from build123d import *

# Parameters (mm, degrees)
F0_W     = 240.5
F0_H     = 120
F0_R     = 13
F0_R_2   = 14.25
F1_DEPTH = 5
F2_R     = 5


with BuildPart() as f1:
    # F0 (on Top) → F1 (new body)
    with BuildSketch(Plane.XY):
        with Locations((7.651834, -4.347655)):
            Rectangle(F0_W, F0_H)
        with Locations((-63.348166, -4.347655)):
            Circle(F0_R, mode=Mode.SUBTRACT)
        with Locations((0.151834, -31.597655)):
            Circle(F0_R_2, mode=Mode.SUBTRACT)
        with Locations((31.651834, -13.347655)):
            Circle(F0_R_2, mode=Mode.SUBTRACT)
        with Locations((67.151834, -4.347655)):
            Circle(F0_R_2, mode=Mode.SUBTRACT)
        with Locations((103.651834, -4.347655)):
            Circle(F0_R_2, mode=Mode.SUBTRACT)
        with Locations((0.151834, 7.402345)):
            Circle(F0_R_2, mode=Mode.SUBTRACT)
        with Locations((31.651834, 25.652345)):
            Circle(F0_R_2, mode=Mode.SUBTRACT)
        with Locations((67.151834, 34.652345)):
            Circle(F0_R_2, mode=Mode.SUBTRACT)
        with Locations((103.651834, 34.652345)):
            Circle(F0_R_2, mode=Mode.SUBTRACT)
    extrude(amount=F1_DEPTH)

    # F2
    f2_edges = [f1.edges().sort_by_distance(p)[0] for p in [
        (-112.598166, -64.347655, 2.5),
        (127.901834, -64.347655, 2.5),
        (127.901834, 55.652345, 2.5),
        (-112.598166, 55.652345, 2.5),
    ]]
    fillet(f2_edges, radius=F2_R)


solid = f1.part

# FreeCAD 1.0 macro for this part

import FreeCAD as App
import Part
import Sketcher

V = App.Vector


def edges_at(feature, points):
    """Names of the edges that pass closest to the given points."""
    edges = feature.Shape.Edges
    near = lambda p: min(range(len(edges)), key=lambda i: edges[i].distToShape(Part.Vertex(*p))[0])
    return sorted({f"Edge{near(p) + 1}" for p in points})

doc = App.newDocument("Part")
body = doc.addObject("PartDesign::Body", "Body")

# Sketch on XY plane
sketch1 = body.newObject("Sketcher::SketchObject", "Sketch")
sketch1.AttachmentSupport = (doc.getObject("XY_Plane"), [""])
sketch1.MapMode = "FlatFace"
sketch1.addGeometry([
    Part.LineSegment(V(-113, 56, 0), V(-113, -64, 0)),  # 0
    Part.LineSegment(V(-113, -64, 0), V(128, -64, 0)),  # 1
    Part.LineSegment(V(128, -64, 0), V(128, 56, 0)),  # 2
    Part.LineSegment(V(128, 56, 0), V(-113, 56, 0)),  # 3
    Part.Circle(V(0, -32, 0), V(0, 0, 1), 14),  # 4
    Part.Circle(V(-63, -4, 0), V(0, 0, 1), 13),  # 5
    Part.Circle(V(32, -13, 0), V(0, 0, 1), 14),  # 6
    Part.Circle(V(67, -4, 0), V(0, 0, 1), 14),  # 7
    Part.Circle(V(104, -4, 0), V(0, 0, 1), 14),  # 8
    Part.Circle(V(0, 7, 0), V(0, 0, 1), 14),  # 9
    Part.Circle(V(32, 26, 0), V(0, 0, 1), 14),  # 10
    Part.Circle(V(67, 35, 0), V(0, 0, 1), 14),  # 11
    Part.Circle(V(104, 35, 0), V(0, 0, 1), 14),  # 12
], False)
sketch1.addConstraint([
    Sketcher.Constraint("Coincident", 0, 2, 1, 1),
    Sketcher.Constraint("Coincident", 1, 2, 2, 1),
    Sketcher.Constraint("Coincident", 2, 2, 3, 1),
    Sketcher.Constraint("Coincident", 3, 2, 0, 1),
    Sketcher.Constraint("Vertical", 0),
    Sketcher.Constraint("Horizontal", 1),
    Sketcher.Constraint("Vertical", 2),
    Sketcher.Constraint("Horizontal", 3),
    Sketcher.Constraint("Equal", 4, 6),
    Sketcher.Constraint("Equal", 6, 7),
    Sketcher.Constraint("Equal", 7, 8),
    Sketcher.Constraint("Equal", 8, 9),
    Sketcher.Constraint("Equal", 9, 10),
    Sketcher.Constraint("Equal", 10, 11),
    Sketcher.Constraint("Equal", 11, 12),
    Sketcher.Constraint("Horizontal", 5, 3, 7, 3),
    Sketcher.Constraint("Horizontal", 7, 3, 8, 3),
    Sketcher.Constraint("Horizontal", 11, 3, 12, 3),
    Sketcher.Constraint("Vertical", 4, 3, 9, 3),
    Sketcher.Constraint("Vertical", 6, 3, 10, 3),
    Sketcher.Constraint("Vertical", 7, 3, 11, 3),
    Sketcher.Constraint("Vertical", 8, 3, 12, 3),
    Sketcher.Constraint("Diameter", 5, 26.0),
    Sketcher.Constraint("Diameter", 4, 28.5),
    Sketcher.Constraint("DistanceY", 0, 2, 0, 1, 120.0),
    Sketcher.Constraint("DistanceX", 1, 1, 1, 2, 240.5),
    Sketcher.Constraint("DistanceX", 5, 3, 6, 3, 95.0),
    Sketcher.Constraint("DistanceY", 6, 3, 5, 3, 9.0),
    Sketcher.Constraint("DistanceX", 4, 3, 7, 3, 67.0),
    Sketcher.Constraint("DistanceX", 6, 3, 8, 3, 72.0),
    Sketcher.Constraint("DistanceY", 4, 3, 9, 3, 39.0),
    Sketcher.Constraint("DistanceY", 6, 3, 10, 3, 39.0),
    Sketcher.Constraint("DistanceY", 10, 3, 11, 3, 9.0),
    Sketcher.Constraint("DistanceY", 0, 2, 5, 3, 60.0),
    Sketcher.Constraint("DistanceX", 5, 3, 4, 3, 63.5),
    Sketcher.Constraint("DistanceY", 4, 3, 5, 3, 27.25),
    Sketcher.Constraint("DistanceX", 0, 2, 5, 3, 49.25),
    Sketcher.Constraint("DistanceX", -1, 1, 4, 3, 0.151834),
    Sketcher.Constraint("DistanceY", 4, 3, -1, 1, 31.597655),
])
pad1 = body.newObject("PartDesign::Pad", "Pad")
pad1.Profile = sketch1
pad1.Length = 5
doc.recompute()

fillet = body.newObject("PartDesign::Fillet", "Fillet")
fillet.Base = (pad1, edges_at(pad1, [
    (-112.598, -64.348, 2.5),
    (127.902, -64.348, 2.5),
    (127.902, 55.652, 2.5),
    (-112.598, 55.652, 2.5),
]))
fillet.Radius = 5

doc.recompute()
